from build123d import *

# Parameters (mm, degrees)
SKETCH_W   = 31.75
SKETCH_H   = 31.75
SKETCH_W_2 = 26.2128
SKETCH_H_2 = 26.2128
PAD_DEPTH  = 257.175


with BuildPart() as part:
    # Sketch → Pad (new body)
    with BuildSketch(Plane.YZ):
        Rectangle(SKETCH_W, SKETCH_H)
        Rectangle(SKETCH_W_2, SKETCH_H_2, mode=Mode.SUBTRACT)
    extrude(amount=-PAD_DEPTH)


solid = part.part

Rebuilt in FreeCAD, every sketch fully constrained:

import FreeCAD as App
import Part
import Sketcher

V = App.Vector
Q = App.Units.Quantity

doc = App.newDocument("Part")
body = doc.addObject("PartDesign::Body", "Body")

sketch1 = body.newObject("Sketcher::SketchObject", "Sketch")
sketch1.AttachmentSupport = (doc.getObject("YZ_Plane"), [""])
sketch1.MapMode = "FlatFace"
sketch1.addGeometry([
    Part.LineSegment(V(-15.875, 15.875, 0), V(-15.875, -15.875, 0)),
    Part.LineSegment(V(-15.875, -15.875, 0), V(15.875, -15.875, 0)),
    Part.LineSegment(V(15.875, -15.875, 0), V(15.875, 15.875, 0)),
    Part.LineSegment(V(15.875, 15.875, 0), V(-15.875, 15.875, 0)),
    Part.LineSegment(V(13.1064, -13.1064, 0), V(-13.1064, -13.1064, 0)),
    Part.LineSegment(V(-13.1064, -13.1064, 0), V(-13.1064, 13.1064, 0)),
    Part.LineSegment(V(-13.1064, 13.1064, 0), V(13.1064, 13.1064, 0)),
    Part.LineSegment(V(13.1064, 13.1064, 0), V(13.1064, -13.1064, 0)),
], False)
sketch1.addConstraint([
    Sketcher.Constraint("Coincident", 0, 2, 1, 1),
    Sketcher.Constraint("Coincident", 1, 2, 2, 1),
    Sketcher.Constraint("Coincident", 2, 2, 3, 1),
    Sketcher.Constraint("Coincident", 3, 2, 0, 1),
    Sketcher.Constraint("Coincident", 4, 2, 5, 1),
    Sketcher.Constraint("Coincident", 5, 2, 6, 1),
    Sketcher.Constraint("Coincident", 6, 2, 7, 1),
    Sketcher.Constraint("Coincident", 7, 2, 4, 1),
    Sketcher.Constraint("Vertical", 0),
    Sketcher.Constraint("Horizontal", 1),
    Sketcher.Constraint("Vertical", 2),
    Sketcher.Constraint("Horizontal", 3),
    Sketcher.Constraint("Horizontal", 4),
    Sketcher.Constraint("Vertical", 5),
    Sketcher.Constraint("Horizontal", 6),
    Sketcher.Constraint("Vertical", 7),
    Sketcher.Constraint("Symmetric", 0, 2, 2, 2, -1, 1),
    Sketcher.Constraint("Symmetric", 4, 2, 6, 2, -1, 1),
    Sketcher.Constraint("Equal", 3, 0),
    Sketcher.Constraint("Equal", 6, 5),
    Sketcher.Constraint("DistanceX", 1, 1, 1, 2, Q("1.25 in")),
    Sketcher.Constraint("DistanceX", 4, 2, 4, 1, Q("1.032 in")),
])
pad1 = body.newObject("PartDesign::Pad", "Pad")
pad1.Profile = sketch1
pad1.Length = Q("10.125 in")
pad1.Reversed = True

doc.recompute()
